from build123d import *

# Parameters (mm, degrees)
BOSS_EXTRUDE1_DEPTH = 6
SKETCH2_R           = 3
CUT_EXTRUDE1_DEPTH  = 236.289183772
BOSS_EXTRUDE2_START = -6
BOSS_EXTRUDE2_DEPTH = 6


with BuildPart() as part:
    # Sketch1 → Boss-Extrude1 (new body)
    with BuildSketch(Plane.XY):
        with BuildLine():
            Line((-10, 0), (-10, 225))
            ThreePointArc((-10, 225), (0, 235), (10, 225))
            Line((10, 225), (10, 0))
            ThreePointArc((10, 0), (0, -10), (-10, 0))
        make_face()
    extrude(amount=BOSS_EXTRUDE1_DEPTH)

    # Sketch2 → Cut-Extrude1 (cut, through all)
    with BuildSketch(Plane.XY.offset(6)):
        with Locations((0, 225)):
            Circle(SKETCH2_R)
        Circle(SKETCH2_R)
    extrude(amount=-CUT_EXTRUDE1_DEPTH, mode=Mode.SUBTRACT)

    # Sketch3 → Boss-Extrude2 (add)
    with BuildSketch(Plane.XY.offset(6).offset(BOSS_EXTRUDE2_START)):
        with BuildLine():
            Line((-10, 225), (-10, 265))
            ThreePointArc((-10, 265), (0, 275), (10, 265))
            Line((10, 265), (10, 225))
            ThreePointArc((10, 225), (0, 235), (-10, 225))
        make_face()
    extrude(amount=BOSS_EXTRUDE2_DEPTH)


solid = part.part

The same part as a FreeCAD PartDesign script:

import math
import FreeCAD as App
import Part
import Sketcher

V = App.Vector

doc = App.newDocument("Part")
body = doc.addObject("PartDesign::Body", "Body")

# Sketch on XY plane
sketch1 = body.newObject("Sketcher::SketchObject", "Sketch")
sketch1.AttachmentSupport = (doc.getObject("XY_Plane"), [""])
sketch1.MapMode = "FlatFace"
sketch1.addGeometry(Part.LineSegment(V(-10, 225, 0), V(-10, 0, 0)), False)
sketch1.addGeometry(Part.ArcOfCircle(Part.Circle(V(0, 0, 0), V(0, 0, 1), 10), math.radians(180), math.radians(360)), False)
sketch1.addGeometry(Part.LineSegment(V(10, 0, 0), V(10, 225, 0)), False)
sketch1.addGeometry(Part.ArcOfCircle(Part.Circle(V(0, 225, 0), V(0, 0, 1), 10), math.radians(0), math.radians(180)), False)
sketch1.addConstraint(Sketcher.Constraint("Tangent", 0, 2, 1, 1))
sketch1.addConstraint(Sketcher.Constraint("Tangent", 1, 2, 2, 1))
sketch1.addConstraint(Sketcher.Constraint("Tangent", 2, 2, 3, 1))
sketch1.addConstraint(Sketcher.Constraint("Tangent", 3, 2, 0, 1))
sketch1.addConstraint(Sketcher.Constraint("Vertical", 0))
sketch1.addConstraint(Sketcher.Constraint("Vertical", 2))
sketch1.addConstraint(Sketcher.Constraint("Coincident", 1, 3, -1, 1))
sketch1.addConstraint(Sketcher.Constraint("Radius", 1, 10.0))
sketch1.addConstraint(Sketcher.Constraint("DistanceY", 0, 2, 0, 1, 225.0))
pad1 = body.newObject("PartDesign::Pad", "Pad")
pad1.Profile = sketch1
pad1.Length = 6

# Sketch on XY plane
sketch2 = body.newObject("Sketcher::SketchObject", "Sketch001")
sketch2.AttachmentSupport = (doc.getObject("XY_Plane"), [""])
sketch2.MapMode = "FlatFace"
sketch2.AttachmentOffset = App.Placement(V(0, 0, 6), App.Rotation())
sketch2.addGeometry(Part.Circle(V(0, 225, 0), V(0, 0, 1), 3), False)
sketch2.addGeometry(Part.Circle(V(0, 0, 0), V(0, 0, 1), 3), False)
sketch2.addConstraint(Sketcher.Constraint("Coincident", 1, 3, -1, 1))
sketch2.addConstraint(Sketcher.Constraint("Equal", 0, 1))
sketch2.addConstraint(Sketcher.Constraint("PointOnObject", 0, 3, -2))
sketch2.addConstraint(Sketcher.Constraint("Diameter", 0, 6.0))
sketch2.addConstraint(Sketcher.Constraint("DistanceY", -1, 1, 0, 3, 225.0))
pocket1 = body.newObject("PartDesign::Pocket", "Pocket")
pocket1.Profile = sketch2
pocket1.Type = "ThroughAll"

# Sketch on XY plane
sketch3 = body.newObject("Sketcher::SketchObject", "Sketch002")
sketch3.AttachmentSupport = (doc.getObject("XY_Plane"), [""])
sketch3.MapMode = "FlatFace"
sketch3.addGeometry(Part.LineSegment(V(-10, 265, 0), V(-10, 225, 0)), False)
sketch3.addGeometry(Part.ArcOfCircle(Part.Circle(V(0, 225, 0), V(0, 0, 1), 10), math.radians(0), math.radians(180)), False)
sketch3.addGeometry(Part.LineSegment(V(10, 225, 0), V(10, 265, 0)), False)
sketch3.addGeometry(Part.ArcOfCircle(Part.Circle(V(0, 265, 0), V(0, 0, 1), 10), math.radians(0), math.radians(180)), False)
sketch3.addConstraint(Sketcher.Constraint("Tangent", 0, 2, 1, 2))
sketch3.addConstraint(Sketcher.Constraint("Tangent", 1, 1, 2, 1))
sketch3.addConstraint(Sketcher.Constraint("Tangent", 2, 2, 3, 1))
sketch3.addConstraint(Sketcher.Constraint("Tangent", 3, 2, 0, 1))
sketch3.addConstraint(Sketcher.Constraint("Vertical", 0))
sketch3.addConstraint(Sketcher.Constraint("Vertical", 2))
sketch3.addConstraint(Sketcher.Constraint("PointOnObject", 1, 3, -2))
sketch3.addConstraint(Sketcher.Constraint("Radius", 1, 10.0))
sketch3.addConstraint(Sketcher.Constraint("DistanceY", 0, 2, 0, 1, 40.0))
sketch3.addConstraint(Sketcher.Constraint("DistanceY", -1, 1, 1, 3, 225.0))
pad2 = body.newObject("PartDesign::Pad", "Pad001")
pad2.Profile = sketch3
pad2.Length = 6

doc.recompute()
